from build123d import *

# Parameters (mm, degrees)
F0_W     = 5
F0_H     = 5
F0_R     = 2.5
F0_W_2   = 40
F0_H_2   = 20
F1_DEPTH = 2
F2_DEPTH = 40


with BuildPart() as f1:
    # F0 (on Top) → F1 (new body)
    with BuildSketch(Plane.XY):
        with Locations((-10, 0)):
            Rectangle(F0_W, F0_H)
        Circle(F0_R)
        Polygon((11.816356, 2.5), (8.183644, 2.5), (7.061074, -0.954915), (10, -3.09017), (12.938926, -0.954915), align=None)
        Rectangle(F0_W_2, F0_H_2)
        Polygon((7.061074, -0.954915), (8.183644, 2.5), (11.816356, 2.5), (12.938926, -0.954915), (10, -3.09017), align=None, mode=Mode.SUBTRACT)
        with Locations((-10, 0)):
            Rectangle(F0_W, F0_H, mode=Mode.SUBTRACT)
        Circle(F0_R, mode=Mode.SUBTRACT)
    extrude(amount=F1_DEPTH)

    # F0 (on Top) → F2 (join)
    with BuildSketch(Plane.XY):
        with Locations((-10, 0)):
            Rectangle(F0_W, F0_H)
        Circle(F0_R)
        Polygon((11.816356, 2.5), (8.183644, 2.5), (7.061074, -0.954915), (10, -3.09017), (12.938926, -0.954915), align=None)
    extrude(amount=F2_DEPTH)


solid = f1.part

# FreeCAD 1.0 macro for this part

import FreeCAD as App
import Part
import Sketcher
Q = App.Units.Quantity


def add_polygon(sketch, points):
    """Adds a closed chain of lines whose ends are joined by coincident constraints."""
    first, n = sketch.GeometryCount, len(points)
    for a, b in zip(points, points[1:] + points[:1]):
        sketch.addGeometry(Part.LineSegment(App.Vector(*a, 0), App.Vector(*b, 0)), False)
    for i in range(n):
        sketch.addConstraint(Sketcher.Constraint("Coincident", first + i, 2, first + (i + 1) % n, 1))

doc = App.newDocument("Part")
body = doc.addObject("PartDesign::Body", "Body")

sketch1 = doc.addObject("Sketcher::SketchObject", "Sketch")
body.addObject(sketch1)
sketch1.AttachmentSupport = (doc.XY_Plane, [""])
sketch1.MapMode = "FlatFace"
add_polygon(sketch1, [(-20, 10), (-20, -10), (20, -10), (20, 10)])
add_polygon(sketch1, [(-7.5, -2.5), (-12.5, -2.5), (-12.5, 2.5), (-7.5, 2.5)])
sketch1.addGeometry(Part.Circle(App.Vector(0, 0, 0), App.Vector(0, 0, 1), 2.5), False)
add_polygon(sketch1, [(10, -3.1), (7.1, -1), (8.2, 2.5), (11.8, 2.5), (12.9, -1)])
sketch1.addConstraint(Sketcher.Constraint("Vertical", 0))
sketch1.addConstraint(Sketcher.Constraint("Horizontal", 1))
sketch1.addConstraint(Sketcher.Constraint("Vertical", 2))
sketch1.addConstraint(Sketcher.Constraint("Horizontal", 3))
sketch1.addConstraint(Sketcher.Constraint("Horizontal", 4))
sketch1.addConstraint(Sketcher.Constraint("Vertical", 5))
sketch1.addConstraint(Sketcher.Constraint("Horizontal", 6))
sketch1.addConstraint(Sketcher.Constraint("Vertical", 7))
sketch1.addConstraint(Sketcher.Constraint("Horizontal", 11))
sketch1.addConstraint(Sketcher.Constraint("Coincident", 8, 3, -1, 1))
sketch1.addConstraint(Sketcher.Constraint("Symmetric", 0, 2, 2, 2, -1, 1))
sketch1.addConstraint(Sketcher.Constraint("Horizontal", 6, 2, 10, 2))
sketch1.addConstraint(Sketcher.Constraint("Horizontal", 9, 2, 12, 2))
sketch1.addConstraint(Sketcher.Constraint("Equal", 6, 5))
sketch1.addConstraint(Sketcher.Constraint("Equal", 9, 10))
sketch1.addConstraint(Sketcher.Constraint("Equal", 10, 12))
sketch1.addConstraint(Sketcher.Constraint("Equal", 12, 13))
sketch1.addConstraint(Sketcher.Constraint("Diameter", 8, Q("5 mm")))
sketch1.addConstraint(Sketcher.Constraint("DistanceX", 1, 1, 1, 2, Q("40 mm")))
sketch1.addConstraint(Sketcher.Constraint("DistanceX", 4, 2, 4, 1, Q("5 mm")))
sketch1.addConstraint(Sketcher.Constraint("DistanceY", 0, 2, 0, 1, Q("20 mm")))
sketch1.addConstraint(Sketcher.Constraint("Angle", 9, Q("143.999996 deg")))
sketch1.addConstraint(Sketcher.Constraint("Angle", 10, Q("71.999999 deg")))
sketch1.addConstraint(Sketcher.Constraint("DistanceX", -1, 1, 13, 2, Q("10 mm")))
sketch1.addConstraint(Sketcher.Constraint("DistanceX", 4, 2, -1, 1, Q("12.5 mm")))
sketch1.addConstraint(Sketcher.Constraint("DistanceY", 4, 2, -1, 1, Q("2.5 mm")))
sketch1.addConstraint(Sketcher.Constraint("DistanceX", 11, 1, 11, 2, Q("3.632712 mm")))
pad1 = doc.addObject("PartDesign::Pad", "Pad")
body.addObject(pad1)
pad1.Profile = sketch1
pad1.Length = 2

sketch2 = doc.addObject("Sketcher::SketchObject", "Sketch001")
body.addObject(sketch2)
sketch2.AttachmentSupport = (doc.XY_Plane, [""])
sketch2.MapMode = "FlatFace"
add_polygon(sketch2, [(-12.5, 2.5), (-12.5, -2.5), (-7.5, -2.5), (-7.5, 2.5)])
sketch2.addGeometry(Part.Circle(App.Vector(0, 0, 0), App.Vector(0, 0, 1), 2.5), False)
add_polygon(sketch2, [(11.8, 2.5), (8.2, 2.5), (7.1, -1), (10, -3.1), (12.9, -1)])
sketch2.addConstraint(Sketcher.Constraint("Vertical", 0))
sketch2.addConstraint(Sketcher.Constraint("Horizontal", 1))
sketch2.addConstraint(Sketcher.Constraint("Vertical", 2))
sketch2.addConstraint(Sketcher.Constraint("Horizontal", 3))
sketch2.addConstraint(Sketcher.Constraint("Horizontal", 5))
sketch2.addConstraint(Sketcher.Constraint("Coincident", 4, 3, -1, 1))
sketch2.addConstraint(Sketcher.Constraint("Horizontal", 3, 2, 5, 2))
sketch2.addConstraint(Sketcher.Constraint("Horizontal", 6, 2, 8, 2))
sketch2.addConstraint(Sketcher.Constraint("Equal", 3, 0))
sketch2.addConstraint(Sketcher.Constraint("Equal", 6, 7))
sketch2.addConstraint(Sketcher.Constraint("Equal", 7, 8))
sketch2.addConstraint(Sketcher.Constraint("Equal", 8, 9))
sketch2.addConstraint(Sketcher.Constraint("Diameter", 4, Q("5 mm")))
sketch2.addConstraint(Sketcher.Constraint("DistanceX", 1, 1, 1, 2, Q("5 mm")))
sketch2.addConstraint(Sketcher.Constraint("Angle", 6, Q("-108.000001 deg")))
sketch2.addConstraint(Sketcher.Constraint("Angle", 7, Q("-36.000004 deg")))
sketch2.addConstraint(Sketcher.Constraint("DistanceX", -1, 1, 7, 2, Q("10 mm")))
sketch2.addConstraint(Sketcher.Constraint("DistanceX", 0, 2, -1, 1, Q("12.5 mm")))
sketch2.addConstraint(Sketcher.Constraint("DistanceY", 0, 2, -1, 1, Q("2.5 mm")))
sketch2.addConstraint(Sketcher.Constraint("DistanceX", 5, 2, 5, 1, Q("3.632712 mm")))
pad2 = doc.addObject("PartDesign::Pad", "Pad001")
body.addObject(pad2)
pad2.Profile = sketch2
pad2.Length = 40

doc.recompute()
